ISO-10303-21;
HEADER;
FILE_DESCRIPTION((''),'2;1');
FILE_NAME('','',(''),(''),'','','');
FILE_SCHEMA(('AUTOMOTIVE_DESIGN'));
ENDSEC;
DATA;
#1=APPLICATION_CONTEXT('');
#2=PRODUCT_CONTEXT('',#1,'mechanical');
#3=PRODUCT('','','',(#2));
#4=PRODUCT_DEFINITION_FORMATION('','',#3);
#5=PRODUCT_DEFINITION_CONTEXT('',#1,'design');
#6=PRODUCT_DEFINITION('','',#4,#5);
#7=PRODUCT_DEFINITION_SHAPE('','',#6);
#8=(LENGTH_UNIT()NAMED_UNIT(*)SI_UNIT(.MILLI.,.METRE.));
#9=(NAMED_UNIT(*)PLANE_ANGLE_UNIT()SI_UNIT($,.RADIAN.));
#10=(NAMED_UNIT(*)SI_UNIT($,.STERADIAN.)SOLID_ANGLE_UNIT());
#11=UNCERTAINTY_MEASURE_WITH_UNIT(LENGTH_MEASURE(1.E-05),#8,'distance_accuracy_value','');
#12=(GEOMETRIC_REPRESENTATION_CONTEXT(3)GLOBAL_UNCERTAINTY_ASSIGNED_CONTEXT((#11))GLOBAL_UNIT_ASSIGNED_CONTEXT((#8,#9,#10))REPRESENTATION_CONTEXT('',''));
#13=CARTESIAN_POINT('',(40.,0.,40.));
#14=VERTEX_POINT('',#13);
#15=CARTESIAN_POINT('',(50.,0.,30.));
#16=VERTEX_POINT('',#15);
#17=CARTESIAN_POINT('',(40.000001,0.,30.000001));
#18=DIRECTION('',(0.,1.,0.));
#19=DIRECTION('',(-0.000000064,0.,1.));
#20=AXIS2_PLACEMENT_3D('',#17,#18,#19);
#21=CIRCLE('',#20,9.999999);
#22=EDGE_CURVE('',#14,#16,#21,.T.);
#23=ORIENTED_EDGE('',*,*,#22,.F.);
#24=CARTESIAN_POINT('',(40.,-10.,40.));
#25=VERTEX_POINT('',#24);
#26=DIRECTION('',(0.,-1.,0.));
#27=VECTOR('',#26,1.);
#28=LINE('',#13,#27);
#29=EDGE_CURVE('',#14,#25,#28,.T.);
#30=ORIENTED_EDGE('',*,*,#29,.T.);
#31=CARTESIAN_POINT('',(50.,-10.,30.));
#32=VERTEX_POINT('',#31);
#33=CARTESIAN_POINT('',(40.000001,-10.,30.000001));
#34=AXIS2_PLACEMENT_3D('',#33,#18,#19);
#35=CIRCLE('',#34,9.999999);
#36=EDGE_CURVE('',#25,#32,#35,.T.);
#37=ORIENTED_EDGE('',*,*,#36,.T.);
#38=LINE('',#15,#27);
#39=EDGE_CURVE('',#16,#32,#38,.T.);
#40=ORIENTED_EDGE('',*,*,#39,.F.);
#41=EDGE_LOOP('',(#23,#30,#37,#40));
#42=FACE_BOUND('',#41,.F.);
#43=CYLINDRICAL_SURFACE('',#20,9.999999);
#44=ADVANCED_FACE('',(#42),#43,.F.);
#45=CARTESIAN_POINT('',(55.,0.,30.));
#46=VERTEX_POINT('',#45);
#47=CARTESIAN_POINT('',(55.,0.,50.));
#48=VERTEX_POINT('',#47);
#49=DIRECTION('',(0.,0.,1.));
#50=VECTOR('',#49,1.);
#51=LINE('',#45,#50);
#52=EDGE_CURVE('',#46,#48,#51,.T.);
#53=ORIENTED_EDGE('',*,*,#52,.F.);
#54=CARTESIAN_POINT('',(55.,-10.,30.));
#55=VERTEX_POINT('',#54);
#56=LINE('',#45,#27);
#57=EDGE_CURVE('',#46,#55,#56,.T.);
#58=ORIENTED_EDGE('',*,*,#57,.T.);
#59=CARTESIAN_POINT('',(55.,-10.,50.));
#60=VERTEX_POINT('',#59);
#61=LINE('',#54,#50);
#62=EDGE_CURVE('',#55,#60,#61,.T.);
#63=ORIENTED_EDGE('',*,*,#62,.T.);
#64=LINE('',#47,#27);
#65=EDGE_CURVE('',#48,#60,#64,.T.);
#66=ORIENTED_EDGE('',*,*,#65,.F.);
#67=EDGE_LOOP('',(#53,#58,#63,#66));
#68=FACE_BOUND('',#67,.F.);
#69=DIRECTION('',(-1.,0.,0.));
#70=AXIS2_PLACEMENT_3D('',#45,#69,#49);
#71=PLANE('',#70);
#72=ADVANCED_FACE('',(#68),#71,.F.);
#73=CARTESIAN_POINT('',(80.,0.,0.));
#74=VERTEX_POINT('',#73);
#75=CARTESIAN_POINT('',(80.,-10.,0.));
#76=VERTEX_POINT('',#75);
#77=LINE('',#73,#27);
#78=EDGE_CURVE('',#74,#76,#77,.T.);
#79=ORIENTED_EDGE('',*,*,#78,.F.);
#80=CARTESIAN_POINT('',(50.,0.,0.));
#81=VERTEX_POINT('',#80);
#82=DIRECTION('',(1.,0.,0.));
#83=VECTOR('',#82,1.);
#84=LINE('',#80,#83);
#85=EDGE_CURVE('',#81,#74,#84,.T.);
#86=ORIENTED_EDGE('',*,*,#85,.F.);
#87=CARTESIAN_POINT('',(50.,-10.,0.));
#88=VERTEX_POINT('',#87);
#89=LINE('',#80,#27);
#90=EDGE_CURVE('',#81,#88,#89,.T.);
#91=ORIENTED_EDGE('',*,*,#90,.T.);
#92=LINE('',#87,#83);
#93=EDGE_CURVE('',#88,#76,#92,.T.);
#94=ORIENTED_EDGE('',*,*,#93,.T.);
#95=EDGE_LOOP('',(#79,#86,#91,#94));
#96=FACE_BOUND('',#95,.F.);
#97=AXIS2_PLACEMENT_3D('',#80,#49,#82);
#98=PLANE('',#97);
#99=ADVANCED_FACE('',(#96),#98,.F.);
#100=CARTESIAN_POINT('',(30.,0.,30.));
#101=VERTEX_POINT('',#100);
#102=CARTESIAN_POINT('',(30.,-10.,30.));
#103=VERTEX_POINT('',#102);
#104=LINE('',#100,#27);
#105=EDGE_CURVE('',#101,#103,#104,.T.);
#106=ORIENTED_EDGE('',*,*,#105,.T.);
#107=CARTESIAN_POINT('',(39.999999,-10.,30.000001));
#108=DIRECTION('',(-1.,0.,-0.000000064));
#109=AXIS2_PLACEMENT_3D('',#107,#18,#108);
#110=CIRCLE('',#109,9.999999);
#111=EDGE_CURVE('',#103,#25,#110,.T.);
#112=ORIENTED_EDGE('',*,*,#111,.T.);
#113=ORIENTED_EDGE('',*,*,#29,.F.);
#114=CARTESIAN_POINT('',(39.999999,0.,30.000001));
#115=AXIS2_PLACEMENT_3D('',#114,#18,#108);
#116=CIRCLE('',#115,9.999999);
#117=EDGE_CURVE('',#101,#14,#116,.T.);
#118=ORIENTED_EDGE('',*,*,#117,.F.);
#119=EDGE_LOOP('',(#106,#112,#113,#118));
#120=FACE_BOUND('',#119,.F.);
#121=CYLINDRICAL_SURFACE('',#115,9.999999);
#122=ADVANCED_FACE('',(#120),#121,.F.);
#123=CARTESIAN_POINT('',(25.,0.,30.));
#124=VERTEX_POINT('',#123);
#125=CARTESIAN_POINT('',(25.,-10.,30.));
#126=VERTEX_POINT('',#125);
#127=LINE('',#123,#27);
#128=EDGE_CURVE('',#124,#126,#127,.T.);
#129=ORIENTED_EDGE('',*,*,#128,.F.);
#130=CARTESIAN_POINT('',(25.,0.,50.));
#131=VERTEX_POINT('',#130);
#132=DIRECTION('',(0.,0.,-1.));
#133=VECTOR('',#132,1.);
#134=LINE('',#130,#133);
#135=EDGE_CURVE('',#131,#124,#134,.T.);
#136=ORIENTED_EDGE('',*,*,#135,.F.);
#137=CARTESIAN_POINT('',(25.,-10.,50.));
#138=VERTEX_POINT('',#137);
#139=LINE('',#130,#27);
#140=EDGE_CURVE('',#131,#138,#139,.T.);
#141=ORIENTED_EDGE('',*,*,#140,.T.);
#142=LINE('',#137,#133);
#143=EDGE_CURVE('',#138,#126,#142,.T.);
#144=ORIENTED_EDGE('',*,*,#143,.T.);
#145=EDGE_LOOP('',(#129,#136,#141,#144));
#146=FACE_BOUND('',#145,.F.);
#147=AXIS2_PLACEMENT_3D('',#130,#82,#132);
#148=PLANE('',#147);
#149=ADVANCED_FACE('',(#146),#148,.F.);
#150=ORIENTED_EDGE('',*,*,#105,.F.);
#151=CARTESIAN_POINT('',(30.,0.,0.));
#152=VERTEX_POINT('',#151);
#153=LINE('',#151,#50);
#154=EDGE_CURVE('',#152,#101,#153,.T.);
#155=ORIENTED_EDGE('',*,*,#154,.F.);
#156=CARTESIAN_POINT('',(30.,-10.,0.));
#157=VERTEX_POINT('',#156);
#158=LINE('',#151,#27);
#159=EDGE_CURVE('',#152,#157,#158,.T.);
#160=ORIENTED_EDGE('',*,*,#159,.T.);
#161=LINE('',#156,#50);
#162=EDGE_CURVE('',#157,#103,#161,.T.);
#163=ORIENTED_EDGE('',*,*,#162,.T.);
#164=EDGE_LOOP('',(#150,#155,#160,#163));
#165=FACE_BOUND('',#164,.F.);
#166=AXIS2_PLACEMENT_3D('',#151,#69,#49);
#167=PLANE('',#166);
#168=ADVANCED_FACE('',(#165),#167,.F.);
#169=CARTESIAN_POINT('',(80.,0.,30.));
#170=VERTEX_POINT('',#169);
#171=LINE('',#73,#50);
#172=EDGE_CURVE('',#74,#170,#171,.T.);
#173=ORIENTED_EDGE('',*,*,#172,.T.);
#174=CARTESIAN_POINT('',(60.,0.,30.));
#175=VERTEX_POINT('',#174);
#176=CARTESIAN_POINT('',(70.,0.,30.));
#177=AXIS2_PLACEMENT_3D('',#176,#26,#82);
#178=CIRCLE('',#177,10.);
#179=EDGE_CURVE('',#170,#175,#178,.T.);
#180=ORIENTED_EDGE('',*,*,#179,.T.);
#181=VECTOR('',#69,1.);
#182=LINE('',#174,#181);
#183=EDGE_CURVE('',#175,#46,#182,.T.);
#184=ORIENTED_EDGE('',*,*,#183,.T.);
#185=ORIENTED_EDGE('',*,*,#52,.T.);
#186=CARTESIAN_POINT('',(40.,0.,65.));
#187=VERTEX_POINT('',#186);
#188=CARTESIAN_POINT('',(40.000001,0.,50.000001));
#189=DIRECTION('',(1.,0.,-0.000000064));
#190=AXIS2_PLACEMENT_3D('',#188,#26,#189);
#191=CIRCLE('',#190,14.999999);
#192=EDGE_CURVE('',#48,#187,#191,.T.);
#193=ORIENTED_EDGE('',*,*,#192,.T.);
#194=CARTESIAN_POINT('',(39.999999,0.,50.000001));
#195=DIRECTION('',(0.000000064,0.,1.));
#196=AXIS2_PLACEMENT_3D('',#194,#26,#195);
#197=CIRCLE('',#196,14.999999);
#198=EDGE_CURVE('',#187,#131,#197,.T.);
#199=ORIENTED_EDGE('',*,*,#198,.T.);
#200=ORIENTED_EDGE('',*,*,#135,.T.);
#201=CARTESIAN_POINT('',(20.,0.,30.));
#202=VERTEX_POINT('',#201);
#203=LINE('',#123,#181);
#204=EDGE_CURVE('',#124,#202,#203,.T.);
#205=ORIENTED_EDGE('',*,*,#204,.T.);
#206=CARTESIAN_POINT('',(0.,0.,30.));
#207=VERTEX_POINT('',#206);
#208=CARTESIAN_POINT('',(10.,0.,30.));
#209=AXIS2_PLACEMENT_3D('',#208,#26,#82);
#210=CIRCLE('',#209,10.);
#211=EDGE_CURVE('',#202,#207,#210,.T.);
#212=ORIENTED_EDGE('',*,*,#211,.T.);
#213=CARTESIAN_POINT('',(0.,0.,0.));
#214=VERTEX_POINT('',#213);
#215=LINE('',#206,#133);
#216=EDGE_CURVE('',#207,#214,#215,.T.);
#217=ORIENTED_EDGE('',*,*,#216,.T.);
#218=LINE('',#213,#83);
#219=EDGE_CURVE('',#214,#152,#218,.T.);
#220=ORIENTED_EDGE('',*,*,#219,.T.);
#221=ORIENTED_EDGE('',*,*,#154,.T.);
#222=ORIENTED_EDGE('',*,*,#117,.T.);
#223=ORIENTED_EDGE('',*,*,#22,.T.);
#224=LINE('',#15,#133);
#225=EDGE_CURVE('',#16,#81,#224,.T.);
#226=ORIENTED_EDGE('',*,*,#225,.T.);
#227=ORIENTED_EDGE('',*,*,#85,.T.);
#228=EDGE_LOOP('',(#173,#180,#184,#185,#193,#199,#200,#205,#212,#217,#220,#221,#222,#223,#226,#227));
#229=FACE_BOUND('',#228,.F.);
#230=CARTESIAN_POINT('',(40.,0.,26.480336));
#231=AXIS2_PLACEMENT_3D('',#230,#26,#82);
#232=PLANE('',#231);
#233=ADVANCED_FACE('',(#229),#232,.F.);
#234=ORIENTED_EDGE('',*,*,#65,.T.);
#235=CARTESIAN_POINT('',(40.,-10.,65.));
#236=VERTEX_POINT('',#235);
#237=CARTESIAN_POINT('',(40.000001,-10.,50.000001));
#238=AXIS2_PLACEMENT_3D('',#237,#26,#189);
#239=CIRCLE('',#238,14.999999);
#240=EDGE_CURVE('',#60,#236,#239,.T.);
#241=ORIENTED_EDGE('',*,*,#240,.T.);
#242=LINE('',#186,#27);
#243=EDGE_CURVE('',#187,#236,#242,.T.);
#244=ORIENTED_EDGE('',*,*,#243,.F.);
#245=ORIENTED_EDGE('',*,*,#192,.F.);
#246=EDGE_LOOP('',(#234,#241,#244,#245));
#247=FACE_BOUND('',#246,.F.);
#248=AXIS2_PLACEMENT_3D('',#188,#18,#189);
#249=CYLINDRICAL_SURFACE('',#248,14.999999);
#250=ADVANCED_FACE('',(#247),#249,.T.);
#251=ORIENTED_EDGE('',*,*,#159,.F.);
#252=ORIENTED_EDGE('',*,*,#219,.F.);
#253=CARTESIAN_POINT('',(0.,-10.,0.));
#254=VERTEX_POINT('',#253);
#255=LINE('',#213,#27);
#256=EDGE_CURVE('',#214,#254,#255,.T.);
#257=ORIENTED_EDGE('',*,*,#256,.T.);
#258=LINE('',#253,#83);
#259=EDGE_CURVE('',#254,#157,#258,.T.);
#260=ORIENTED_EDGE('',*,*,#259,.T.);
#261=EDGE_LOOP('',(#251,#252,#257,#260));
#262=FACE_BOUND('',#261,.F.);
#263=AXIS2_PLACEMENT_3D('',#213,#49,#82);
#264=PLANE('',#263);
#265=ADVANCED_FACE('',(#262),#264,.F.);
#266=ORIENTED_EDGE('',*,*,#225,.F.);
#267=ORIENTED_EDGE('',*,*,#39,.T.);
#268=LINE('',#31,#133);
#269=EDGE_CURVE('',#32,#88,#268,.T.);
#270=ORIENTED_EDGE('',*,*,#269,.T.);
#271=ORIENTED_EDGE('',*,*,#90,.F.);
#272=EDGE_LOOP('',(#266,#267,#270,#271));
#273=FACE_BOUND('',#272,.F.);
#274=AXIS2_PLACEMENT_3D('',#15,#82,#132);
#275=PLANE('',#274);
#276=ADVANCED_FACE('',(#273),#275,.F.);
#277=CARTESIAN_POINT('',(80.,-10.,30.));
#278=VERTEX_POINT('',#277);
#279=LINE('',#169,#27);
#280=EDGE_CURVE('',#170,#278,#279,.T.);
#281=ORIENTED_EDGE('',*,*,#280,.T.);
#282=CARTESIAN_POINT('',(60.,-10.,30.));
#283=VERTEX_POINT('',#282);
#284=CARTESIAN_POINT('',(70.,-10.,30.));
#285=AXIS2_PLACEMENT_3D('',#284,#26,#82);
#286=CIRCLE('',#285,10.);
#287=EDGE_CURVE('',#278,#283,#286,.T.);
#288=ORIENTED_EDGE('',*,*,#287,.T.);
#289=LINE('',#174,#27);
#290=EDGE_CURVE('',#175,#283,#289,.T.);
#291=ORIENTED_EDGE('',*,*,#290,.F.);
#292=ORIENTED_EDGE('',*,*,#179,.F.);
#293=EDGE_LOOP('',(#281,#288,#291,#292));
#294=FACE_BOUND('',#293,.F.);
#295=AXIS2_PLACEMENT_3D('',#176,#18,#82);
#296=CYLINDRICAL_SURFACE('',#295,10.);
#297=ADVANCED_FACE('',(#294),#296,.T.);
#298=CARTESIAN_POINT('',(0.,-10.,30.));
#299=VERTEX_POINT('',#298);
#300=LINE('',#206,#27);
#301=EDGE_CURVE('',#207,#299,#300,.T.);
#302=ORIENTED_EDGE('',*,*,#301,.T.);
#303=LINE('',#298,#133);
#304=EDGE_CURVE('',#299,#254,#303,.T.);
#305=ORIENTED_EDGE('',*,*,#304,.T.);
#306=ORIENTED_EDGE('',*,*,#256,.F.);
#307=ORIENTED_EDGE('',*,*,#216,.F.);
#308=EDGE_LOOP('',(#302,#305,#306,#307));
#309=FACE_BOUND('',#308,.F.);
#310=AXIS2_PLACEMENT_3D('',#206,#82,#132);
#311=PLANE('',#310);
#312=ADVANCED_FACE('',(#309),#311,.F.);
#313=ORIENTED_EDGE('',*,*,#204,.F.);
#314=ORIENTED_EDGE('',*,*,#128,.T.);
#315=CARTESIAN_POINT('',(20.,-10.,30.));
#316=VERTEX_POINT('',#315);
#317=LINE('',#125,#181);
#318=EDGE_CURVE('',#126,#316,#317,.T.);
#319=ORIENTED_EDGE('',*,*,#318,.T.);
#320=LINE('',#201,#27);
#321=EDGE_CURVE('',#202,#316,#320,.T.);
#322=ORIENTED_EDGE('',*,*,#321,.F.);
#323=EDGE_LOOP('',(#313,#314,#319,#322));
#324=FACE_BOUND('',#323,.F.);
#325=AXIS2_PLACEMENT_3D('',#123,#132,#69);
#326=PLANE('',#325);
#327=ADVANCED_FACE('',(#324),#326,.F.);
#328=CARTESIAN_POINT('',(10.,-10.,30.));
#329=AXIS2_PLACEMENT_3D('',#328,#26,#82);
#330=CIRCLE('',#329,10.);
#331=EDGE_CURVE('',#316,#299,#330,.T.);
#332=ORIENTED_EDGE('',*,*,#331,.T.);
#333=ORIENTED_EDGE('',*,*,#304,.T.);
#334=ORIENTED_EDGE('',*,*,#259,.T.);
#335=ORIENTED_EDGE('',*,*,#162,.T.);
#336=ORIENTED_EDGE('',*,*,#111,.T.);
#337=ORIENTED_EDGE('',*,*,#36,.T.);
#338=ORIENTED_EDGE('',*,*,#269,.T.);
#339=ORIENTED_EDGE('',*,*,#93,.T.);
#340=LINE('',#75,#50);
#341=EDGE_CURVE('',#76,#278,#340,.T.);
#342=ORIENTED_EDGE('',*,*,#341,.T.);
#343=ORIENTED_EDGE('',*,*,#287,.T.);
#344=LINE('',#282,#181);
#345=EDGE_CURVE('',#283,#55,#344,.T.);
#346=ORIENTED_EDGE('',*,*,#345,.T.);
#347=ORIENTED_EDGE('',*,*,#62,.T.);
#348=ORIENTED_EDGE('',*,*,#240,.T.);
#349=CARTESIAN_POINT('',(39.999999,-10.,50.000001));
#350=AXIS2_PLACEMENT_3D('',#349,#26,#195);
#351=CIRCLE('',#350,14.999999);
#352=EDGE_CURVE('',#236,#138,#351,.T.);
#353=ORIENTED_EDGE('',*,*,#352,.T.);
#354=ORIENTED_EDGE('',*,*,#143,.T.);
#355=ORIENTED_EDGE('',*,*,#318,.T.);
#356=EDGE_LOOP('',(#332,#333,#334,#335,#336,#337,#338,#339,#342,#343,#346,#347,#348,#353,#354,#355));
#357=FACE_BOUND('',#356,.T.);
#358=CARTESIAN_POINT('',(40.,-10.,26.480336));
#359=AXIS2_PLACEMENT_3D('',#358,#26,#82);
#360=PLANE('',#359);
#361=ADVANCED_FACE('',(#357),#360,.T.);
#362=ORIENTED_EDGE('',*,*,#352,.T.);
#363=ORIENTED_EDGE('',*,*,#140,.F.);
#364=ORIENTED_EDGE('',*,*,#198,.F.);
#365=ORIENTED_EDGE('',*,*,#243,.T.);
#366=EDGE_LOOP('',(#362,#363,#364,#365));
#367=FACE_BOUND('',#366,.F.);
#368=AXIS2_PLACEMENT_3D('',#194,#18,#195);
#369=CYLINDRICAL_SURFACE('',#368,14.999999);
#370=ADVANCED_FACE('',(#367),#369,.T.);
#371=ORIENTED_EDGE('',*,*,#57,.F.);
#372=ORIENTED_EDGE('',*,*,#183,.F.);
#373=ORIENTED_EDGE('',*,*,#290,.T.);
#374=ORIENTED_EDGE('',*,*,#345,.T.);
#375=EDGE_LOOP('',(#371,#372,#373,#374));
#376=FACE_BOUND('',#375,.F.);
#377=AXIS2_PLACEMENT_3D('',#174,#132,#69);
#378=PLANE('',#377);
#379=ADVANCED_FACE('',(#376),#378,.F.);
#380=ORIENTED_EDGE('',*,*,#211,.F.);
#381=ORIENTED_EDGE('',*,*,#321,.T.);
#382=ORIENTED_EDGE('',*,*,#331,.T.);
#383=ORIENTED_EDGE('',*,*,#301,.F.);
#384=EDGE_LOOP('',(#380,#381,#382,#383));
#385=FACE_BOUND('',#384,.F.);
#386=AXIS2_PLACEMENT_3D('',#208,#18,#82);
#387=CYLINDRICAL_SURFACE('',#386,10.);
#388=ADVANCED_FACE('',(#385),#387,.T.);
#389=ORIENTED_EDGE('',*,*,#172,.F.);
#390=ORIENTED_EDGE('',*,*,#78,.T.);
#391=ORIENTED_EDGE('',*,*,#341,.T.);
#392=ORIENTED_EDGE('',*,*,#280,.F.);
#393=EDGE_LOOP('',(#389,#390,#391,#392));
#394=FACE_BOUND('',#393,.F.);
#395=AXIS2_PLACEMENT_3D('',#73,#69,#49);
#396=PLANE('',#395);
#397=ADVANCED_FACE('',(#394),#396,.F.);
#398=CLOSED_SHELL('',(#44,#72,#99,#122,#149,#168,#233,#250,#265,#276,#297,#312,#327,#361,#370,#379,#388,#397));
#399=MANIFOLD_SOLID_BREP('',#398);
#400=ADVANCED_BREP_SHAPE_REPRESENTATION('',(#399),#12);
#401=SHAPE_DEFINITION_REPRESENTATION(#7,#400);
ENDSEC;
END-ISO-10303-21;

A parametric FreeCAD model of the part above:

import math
import FreeCAD as App
import Part
import Sketcher
from FreeCAD import Vector

doc = App.newDocument("Part")
body = doc.addObject("PartDesign::Body", "Body")

# Sketch on XZ plane
sketch1 = body.newObject("Sketcher::SketchObject", "Sketch")
sketch1.AttachmentSupport = (doc.getObject("XZ_Plane"), [""])
sketch1.MapMode = "FlatFace"
sketch1.addGeometry([
    Part.LineSegment(Vector(0, 30, 0), Vector(0, 0, 0)),  # 0
    Part.LineSegment(Vector(0, 0, 0), Vector(30, 0, 0)),  # 1
    Part.LineSegment(Vector(30, 0, 0), Vector(30, 30, 0)),  # 2
    Part.ArcOfCircle(Part.Circle(Vector(39.999999, 30.000001, 0), Vector(0, 0, 1), 9.999999), math.radians(89.999996), math.radians(180.000004)),  # 3
    Part.ArcOfCircle(Part.Circle(Vector(40.000001, 30.000001, 0), Vector(0, 0, 1), 9.999999), math.radians(-0.000004), math.radians(90.000004)),  # 4
    Part.LineSegment(Vector(50, 30, 0), Vector(50, 0, 0)),  # 5
    Part.LineSegment(Vector(50, 0, 0), Vector(80, 0, 0)),  # 6
    Part.LineSegment(Vector(80, 0, 0), Vector(80, 30, 0)),  # 7
    Part.ArcOfCircle(Part.Circle(Vector(70, 30, 0), Vector(0, 0, 1), 10), math.radians(0), math.radians(180)),  # 8
    Part.LineSegment(Vector(60, 30, 0), Vector(55, 30, 0)),  # 9
    Part.LineSegment(Vector(55, 30, 0), Vector(55, 50, 0)),  # 10
    Part.ArcOfCircle(Part.Circle(Vector(40.000001, 50.000001, 0), Vector(0, 0, 1), 14.999999), math.radians(-0.000004), math.radians(90.000004)),  # 11
    Part.ArcOfCircle(Part.Circle(Vector(39.999999, 50.000001, 0), Vector(0, 0, 1), 14.999999), math.radians(89.999996), math.radians(180.000004)),  # 12
    Part.LineSegment(Vector(25, 50, 0), Vector(25, 30, 0)),  # 13
    Part.LineSegment(Vector(25, 30, 0), Vector(20, 30, 0)),  # 14
    Part.ArcOfCircle(Part.Circle(Vector(10, 30, 0), Vector(0, 0, 1), 10), math.radians(0), math.radians(180)),  # 15
], False)
sketch1.addConstraint([
    Sketcher.Constraint("Coincident", 0, 2, 1, 1),
    Sketcher.Constraint("Coincident", 1, 2, 2, 1),
    Sketcher.Constraint("Tangent", 2, 2, 3, 2),
    Sketcher.Constraint("Tangent", 3, 1, 4, 2),
    Sketcher.Constraint("Tangent", 4, 1, 5, 1),
    Sketcher.Constraint("Coincident", 5, 2, 6, 1),
    Sketcher.Constraint("Coincident", 6, 2, 7, 1),
    Sketcher.Constraint("Tangent", 7, 2, 8, 1),
    Sketcher.Constraint("Coincident", 8, 2, 9, 1),
    Sketcher.Constraint("Coincident", 9, 2, 10, 1),
    Sketcher.Constraint("Tangent", 10, 2, 11, 1),
    Sketcher.Constraint("Tangent", 11, 2, 12, 1),
    Sketcher.Constraint("Tangent", 12, 2, 13, 1),
    Sketcher.Constraint("Coincident", 13, 2, 14, 1),
    Sketcher.Constraint("Coincident", 14, 2, 15, 1),
    Sketcher.Constraint("Tangent", 15, 2, 0, 1),
    Sketcher.Constraint("Vertical", 0),
    Sketcher.Constraint("Horizontal", 1),
    Sketcher.Constraint("Vertical", 2),
    Sketcher.Constraint("Vertical", 5),
    Sketcher.Constraint("Horizontal", 6),
    Sketcher.Constraint("Vertical", 7),
    Sketcher.Constraint("Horizontal", 9),
    Sketcher.Constraint("Vertical", 10),
    Sketcher.Constraint("Vertical", 13),
    Sketcher.Constraint("Horizontal", 14),
    Sketcher.Constraint("Coincident", 0, 2, -1, 1),
    Sketcher.Constraint("Equal", 3, 4),
    Sketcher.Constraint("Equal", 4, 8),
    Sketcher.Constraint("Equal", 11, 12),
    Sketcher.Constraint("Equal", 8, 15),
    Sketcher.Constraint("PointOnObject", 5, 2, -1),
    Sketcher.Constraint("Horizontal", 4, 3, 8, 3),
    Sketcher.Constraint("Horizontal", 8, 3, 15, 3),
    Sketcher.Constraint("Horizontal", 7, 2, 8, 2),
    Sketcher.Constraint("Horizontal", 9, 2, 13, 2),
    Sketcher.Constraint("Vertical", 4, 3, 11, 3),
    Sketcher.Constraint("Vertical", 12, 3, 3, 1),
    Sketcher.Constraint("Vertical", 3, 1, 11, 2),
    Sketcher.Constraint("Equal", 1, 6),
    Sketcher.Constraint("Equal", 6, 0),
    Sketcher.Constraint("Radius", 3, 9.999999),
    Sketcher.Constraint("Radius", 11, 14.999999),
    Sketcher.Constraint("DistanceX", 1, 1, 1, 2, 30.0),
    Sketcher.Constraint("DistanceY", 10, 1, 10, 2, 20.0),
])
pad1 = body.newObject("PartDesign::Pad", "Pad")
pad1.Profile = sketch1
pad1.Length = 10

doc.recompute()
